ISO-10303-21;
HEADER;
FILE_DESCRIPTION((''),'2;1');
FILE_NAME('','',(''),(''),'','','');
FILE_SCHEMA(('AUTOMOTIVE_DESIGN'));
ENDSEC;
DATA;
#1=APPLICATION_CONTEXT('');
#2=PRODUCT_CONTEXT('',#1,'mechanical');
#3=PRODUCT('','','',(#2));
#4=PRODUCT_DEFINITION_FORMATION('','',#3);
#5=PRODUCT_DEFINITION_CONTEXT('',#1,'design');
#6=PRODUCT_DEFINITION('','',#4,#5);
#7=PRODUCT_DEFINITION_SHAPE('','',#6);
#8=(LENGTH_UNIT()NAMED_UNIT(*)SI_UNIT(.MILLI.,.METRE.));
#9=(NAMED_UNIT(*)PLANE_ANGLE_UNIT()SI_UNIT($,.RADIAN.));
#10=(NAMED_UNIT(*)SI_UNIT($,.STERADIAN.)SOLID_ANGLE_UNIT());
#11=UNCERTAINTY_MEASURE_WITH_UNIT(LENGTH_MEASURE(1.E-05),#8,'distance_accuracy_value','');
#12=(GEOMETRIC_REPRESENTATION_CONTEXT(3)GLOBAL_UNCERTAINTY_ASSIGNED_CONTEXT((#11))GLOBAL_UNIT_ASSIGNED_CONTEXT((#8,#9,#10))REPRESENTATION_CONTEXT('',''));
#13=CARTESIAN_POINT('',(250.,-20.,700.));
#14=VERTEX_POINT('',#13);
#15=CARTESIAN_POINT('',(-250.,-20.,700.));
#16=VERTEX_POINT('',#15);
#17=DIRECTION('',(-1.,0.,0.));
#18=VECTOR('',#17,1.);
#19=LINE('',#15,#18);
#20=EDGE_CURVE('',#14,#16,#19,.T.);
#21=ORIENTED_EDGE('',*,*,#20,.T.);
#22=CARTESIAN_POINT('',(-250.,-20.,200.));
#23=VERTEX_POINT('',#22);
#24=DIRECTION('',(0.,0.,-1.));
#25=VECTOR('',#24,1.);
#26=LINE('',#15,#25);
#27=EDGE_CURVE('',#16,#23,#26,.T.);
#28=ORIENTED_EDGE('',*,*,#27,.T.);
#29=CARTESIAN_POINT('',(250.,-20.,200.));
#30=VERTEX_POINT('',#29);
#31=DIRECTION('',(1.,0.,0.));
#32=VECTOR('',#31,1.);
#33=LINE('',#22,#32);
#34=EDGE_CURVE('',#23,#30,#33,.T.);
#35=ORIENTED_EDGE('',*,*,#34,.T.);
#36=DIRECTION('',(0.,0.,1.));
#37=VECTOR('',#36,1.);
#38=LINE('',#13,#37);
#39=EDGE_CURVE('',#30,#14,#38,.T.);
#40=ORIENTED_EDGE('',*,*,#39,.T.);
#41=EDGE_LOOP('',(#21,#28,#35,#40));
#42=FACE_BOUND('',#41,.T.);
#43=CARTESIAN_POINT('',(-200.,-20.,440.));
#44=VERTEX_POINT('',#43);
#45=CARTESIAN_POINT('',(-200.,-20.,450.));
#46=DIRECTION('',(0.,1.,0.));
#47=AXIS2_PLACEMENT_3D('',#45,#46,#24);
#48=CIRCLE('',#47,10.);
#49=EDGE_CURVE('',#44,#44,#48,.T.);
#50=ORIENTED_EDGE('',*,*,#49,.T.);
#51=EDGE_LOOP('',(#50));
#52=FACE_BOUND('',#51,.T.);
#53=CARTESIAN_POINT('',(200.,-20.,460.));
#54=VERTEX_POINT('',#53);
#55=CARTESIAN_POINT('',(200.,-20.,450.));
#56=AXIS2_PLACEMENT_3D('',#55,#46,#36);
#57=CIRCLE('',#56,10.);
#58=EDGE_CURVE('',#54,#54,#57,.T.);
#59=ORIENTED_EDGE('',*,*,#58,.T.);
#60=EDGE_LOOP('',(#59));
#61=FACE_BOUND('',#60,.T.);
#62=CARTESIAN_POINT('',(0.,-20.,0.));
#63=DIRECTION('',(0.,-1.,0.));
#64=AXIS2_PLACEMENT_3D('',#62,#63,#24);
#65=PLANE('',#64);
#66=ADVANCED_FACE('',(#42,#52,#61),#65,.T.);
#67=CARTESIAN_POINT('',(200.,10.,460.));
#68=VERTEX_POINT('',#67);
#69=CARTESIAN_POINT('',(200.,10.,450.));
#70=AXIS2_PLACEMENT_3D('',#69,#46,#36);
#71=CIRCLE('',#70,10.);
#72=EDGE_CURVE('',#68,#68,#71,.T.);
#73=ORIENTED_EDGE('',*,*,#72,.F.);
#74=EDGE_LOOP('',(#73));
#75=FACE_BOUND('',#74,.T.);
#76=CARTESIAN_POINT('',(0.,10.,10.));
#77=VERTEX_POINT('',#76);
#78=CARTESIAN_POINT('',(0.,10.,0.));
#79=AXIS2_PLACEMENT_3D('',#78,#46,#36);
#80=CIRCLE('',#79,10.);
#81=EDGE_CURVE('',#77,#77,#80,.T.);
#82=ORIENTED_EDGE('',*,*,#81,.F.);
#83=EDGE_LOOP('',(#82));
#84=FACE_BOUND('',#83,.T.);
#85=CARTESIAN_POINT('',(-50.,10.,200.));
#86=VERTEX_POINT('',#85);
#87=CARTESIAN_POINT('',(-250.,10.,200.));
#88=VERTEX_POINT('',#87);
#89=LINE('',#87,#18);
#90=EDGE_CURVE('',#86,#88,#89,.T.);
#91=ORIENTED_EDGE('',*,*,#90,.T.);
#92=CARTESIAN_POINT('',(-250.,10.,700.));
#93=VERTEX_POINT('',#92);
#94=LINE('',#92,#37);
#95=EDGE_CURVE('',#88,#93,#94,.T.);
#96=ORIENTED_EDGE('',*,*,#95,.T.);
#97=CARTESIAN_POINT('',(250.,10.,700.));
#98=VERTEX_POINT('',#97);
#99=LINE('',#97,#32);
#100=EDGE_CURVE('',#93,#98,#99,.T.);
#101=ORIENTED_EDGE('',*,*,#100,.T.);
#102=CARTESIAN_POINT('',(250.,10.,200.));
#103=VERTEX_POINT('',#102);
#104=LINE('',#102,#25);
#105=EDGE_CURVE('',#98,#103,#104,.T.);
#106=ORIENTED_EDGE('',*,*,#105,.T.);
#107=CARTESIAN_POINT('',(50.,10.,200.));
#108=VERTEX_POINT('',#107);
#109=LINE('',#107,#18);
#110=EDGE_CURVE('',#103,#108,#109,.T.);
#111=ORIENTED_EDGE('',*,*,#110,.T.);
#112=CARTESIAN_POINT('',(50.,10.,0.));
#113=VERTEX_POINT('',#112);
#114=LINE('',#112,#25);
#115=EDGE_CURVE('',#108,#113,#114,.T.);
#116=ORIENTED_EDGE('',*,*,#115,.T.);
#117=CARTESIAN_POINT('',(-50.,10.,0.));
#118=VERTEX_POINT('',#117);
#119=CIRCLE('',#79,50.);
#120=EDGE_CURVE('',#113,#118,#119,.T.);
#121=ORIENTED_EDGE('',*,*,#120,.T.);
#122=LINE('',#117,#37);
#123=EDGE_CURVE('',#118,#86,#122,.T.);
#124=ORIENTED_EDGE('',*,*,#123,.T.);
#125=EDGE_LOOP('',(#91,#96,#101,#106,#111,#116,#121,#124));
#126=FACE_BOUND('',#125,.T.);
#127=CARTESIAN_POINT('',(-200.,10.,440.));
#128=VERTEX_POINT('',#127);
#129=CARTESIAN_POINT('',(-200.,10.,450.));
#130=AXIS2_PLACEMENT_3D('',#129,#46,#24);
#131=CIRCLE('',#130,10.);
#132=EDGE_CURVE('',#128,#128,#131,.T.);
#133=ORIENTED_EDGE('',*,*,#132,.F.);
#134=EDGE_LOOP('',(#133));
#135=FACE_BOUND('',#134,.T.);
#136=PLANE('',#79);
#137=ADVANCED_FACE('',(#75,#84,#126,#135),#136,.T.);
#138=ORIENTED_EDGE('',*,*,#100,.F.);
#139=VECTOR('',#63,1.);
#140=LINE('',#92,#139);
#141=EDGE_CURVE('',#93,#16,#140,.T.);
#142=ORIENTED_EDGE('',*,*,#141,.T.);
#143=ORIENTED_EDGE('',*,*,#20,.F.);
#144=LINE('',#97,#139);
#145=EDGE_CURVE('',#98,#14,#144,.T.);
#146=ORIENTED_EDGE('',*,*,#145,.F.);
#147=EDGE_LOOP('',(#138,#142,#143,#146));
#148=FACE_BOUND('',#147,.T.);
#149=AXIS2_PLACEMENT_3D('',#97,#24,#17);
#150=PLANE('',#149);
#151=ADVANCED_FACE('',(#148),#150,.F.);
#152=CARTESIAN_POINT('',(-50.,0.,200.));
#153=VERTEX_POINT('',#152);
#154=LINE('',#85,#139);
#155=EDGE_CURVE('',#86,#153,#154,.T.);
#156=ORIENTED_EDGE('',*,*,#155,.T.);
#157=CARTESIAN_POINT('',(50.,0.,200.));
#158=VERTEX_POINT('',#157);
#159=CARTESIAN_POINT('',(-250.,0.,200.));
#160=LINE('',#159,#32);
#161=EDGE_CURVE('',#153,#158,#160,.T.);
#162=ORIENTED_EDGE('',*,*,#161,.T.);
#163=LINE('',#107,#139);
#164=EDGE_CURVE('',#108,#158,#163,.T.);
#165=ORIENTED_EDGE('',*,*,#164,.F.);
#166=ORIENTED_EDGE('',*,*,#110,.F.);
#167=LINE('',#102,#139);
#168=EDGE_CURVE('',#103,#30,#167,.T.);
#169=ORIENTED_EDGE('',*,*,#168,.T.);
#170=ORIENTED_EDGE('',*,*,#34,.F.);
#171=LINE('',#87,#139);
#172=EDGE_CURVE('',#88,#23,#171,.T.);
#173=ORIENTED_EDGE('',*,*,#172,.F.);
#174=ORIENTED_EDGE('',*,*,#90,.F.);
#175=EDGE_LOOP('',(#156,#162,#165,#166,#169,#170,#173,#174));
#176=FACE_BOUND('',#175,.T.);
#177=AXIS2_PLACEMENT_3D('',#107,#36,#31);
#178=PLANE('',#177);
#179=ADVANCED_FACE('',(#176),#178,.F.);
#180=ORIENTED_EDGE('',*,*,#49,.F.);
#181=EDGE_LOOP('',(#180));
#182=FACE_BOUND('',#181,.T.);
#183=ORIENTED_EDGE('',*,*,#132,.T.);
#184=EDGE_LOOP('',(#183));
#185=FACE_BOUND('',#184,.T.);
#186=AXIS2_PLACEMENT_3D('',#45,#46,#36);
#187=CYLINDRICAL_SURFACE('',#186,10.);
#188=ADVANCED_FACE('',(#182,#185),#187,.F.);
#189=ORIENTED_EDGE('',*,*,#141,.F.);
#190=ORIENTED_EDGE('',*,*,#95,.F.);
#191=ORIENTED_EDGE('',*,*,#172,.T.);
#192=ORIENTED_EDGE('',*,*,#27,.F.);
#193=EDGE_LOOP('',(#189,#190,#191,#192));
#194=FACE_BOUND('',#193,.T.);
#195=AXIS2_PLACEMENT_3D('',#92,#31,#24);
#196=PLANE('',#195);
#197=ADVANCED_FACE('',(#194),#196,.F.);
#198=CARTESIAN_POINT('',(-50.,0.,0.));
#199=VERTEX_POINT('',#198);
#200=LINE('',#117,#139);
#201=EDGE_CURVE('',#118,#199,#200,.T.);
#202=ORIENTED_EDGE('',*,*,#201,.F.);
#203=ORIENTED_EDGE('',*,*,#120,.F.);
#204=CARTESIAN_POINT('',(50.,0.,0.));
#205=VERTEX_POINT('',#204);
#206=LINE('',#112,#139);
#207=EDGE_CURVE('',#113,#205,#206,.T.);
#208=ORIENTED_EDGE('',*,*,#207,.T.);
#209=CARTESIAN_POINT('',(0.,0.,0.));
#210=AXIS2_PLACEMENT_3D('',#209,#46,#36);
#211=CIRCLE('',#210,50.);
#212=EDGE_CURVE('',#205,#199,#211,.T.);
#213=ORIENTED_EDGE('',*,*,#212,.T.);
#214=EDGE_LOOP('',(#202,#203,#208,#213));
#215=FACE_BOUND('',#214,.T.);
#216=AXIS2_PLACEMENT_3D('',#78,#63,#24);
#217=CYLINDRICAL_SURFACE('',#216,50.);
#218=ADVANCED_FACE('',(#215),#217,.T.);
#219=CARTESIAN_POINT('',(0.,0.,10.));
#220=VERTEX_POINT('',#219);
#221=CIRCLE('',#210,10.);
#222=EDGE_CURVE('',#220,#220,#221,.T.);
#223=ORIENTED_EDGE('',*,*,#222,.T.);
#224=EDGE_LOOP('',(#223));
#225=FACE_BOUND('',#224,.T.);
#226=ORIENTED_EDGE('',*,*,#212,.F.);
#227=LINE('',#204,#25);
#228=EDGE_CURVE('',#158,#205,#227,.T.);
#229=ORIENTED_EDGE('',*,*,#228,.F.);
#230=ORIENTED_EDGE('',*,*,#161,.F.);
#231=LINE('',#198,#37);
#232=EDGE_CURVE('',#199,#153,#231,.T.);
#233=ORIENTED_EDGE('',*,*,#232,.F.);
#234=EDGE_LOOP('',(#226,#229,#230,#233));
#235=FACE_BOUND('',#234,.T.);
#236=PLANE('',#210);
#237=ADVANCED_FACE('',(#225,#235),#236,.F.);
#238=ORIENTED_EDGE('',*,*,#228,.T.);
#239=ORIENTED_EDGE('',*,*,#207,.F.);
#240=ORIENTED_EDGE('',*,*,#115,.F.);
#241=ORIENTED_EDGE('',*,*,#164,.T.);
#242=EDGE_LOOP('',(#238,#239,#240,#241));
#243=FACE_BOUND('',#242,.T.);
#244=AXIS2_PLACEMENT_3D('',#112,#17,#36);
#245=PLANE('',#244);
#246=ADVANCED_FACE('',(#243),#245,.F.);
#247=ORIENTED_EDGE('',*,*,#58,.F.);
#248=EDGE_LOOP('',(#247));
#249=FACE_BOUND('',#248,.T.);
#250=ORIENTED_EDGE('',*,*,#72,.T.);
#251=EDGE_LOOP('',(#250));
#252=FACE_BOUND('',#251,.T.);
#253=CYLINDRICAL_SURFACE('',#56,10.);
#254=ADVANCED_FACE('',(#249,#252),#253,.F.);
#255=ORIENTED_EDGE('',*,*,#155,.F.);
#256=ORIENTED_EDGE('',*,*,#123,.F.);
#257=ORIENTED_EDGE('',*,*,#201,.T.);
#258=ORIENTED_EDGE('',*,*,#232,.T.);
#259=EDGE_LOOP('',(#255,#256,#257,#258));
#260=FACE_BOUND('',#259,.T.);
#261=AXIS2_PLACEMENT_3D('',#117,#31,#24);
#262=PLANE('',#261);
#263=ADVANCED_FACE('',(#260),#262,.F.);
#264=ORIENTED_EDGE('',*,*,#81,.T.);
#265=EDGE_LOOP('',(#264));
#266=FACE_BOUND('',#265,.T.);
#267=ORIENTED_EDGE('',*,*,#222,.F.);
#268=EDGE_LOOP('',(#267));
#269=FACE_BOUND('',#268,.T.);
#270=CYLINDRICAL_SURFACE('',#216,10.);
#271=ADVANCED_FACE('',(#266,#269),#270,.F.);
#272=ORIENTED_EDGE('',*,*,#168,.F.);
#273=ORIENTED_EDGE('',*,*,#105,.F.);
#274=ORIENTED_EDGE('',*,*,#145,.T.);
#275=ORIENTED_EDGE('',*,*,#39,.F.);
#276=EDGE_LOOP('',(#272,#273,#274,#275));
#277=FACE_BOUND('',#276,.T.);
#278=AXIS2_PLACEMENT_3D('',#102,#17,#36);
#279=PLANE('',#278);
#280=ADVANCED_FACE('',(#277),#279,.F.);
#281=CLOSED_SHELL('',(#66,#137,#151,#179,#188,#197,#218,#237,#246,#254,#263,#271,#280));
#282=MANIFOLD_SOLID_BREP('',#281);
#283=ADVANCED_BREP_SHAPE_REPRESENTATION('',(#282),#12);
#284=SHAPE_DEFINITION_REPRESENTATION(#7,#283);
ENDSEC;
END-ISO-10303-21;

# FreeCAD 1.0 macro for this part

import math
import FreeCAD as App
import Part
import Sketcher
from FreeCAD import Vector


def add_polygon(sketch, points):
    """Adds a closed chain of lines whose ends are joined by coincident constraints."""
    first, n = sketch.GeometryCount, len(points)
    for a, b in zip(points, points[1:] + points[:1]):
        sketch.addGeometry(Part.LineSegment(App.Vector(*a, 0), App.Vector(*b, 0)), False)
    for i in range(n):
        sketch.addConstraint(Sketcher.Constraint("Coincident", first + i, 2, first + (i + 1) % n, 1))

doc = App.newDocument("Part")
params = doc.addObject("Spreadsheet::Sheet", "Params")
for row, (alias, value) in enumerate([
    ("sketch1_diameter", "20 mm"),
    ("sketch1_radius", "50 mm"),
    ("sketch1_width", "200 mm"),
    ("pad1_length", "10 mm"),
    ("sketch2_width", "500 mm"),
    ("pad2_length", "20 mm"),
    ("sketch3_diameter", "20 mm"),
], start=1):
    params.set(f"A{row}", alias)
    params.set(f"B{row}", "=" + value)
    params.setAlias(f"B{row}", alias)

body = doc.addObject("PartDesign::Body", "Body")

sketch1 = body.newObject("Sketcher::SketchObject", "Sketch")
sketch1.AttachmentSupport = (doc.getObject("XZ_Plane"), [""])
sketch1.MapMode = "FlatFace"
sketch1.addGeometry(Part.LineSegment(Vector(-50, 0, 0), Vector(-50, 200, 0)), False)
sketch1.addGeometry(Part.LineSegment(Vector(-50, 200, 0), Vector(-250, 200, 0)), False)
sketch1.addGeometry(Part.LineSegment(Vector(-250, 200, 0), Vector(-250, 700, 0)), False)
sketch1.addGeometry(Part.LineSegment(Vector(-250, 700, 0), Vector(250, 700, 0)), False)
sketch1.addGeometry(Part.LineSegment(Vector(250, 700, 0), Vector(250, 200, 0)), False)
sketch1.addGeometry(Part.LineSegment(Vector(250, 200, 0), Vector(50, 200, 0)), False)
sketch1.addGeometry(Part.LineSegment(Vector(50, 200, 0), Vector(50, 0, 0)), False)
sketch1.addGeometry(Part.ArcOfCircle(Part.Circle(Vector(0, 0, 0), Vector(0, 0, 1), 50), math.radians(180), math.radians(360)), False)
sketch1.addGeometry(Part.Circle(Vector(0, 0, 0), Vector(0, 0, 1), 10), False)
sketch1.addConstraint(Sketcher.Constraint("Coincident", 0, 2, 1, 1))
sketch1.addConstraint(Sketcher.Constraint("Coincident", 1, 2, 2, 1))
sketch1.addConstraint(Sketcher.Constraint("Coincident", 2, 2, 3, 1))
sketch1.addConstraint(Sketcher.Constraint("Coincident", 3, 2, 4, 1))
sketch1.addConstraint(Sketcher.Constraint("Coincident", 4, 2, 5, 1))
sketch1.addConstraint(Sketcher.Constraint("Coincident", 5, 2, 6, 1))
sketch1.addConstraint(Sketcher.Constraint("Tangent", 6, 2, 7, 2))
sketch1.addConstraint(Sketcher.Constraint("Tangent", 7, 1, 0, 1))
sketch1.addConstraint(Sketcher.Constraint("Vertical", 0))
sketch1.addConstraint(Sketcher.Constraint("Horizontal", 1))
sketch1.addConstraint(Sketcher.Constraint("Vertical", 2))
sketch1.addConstraint(Sketcher.Constraint("Horizontal", 3))
sketch1.addConstraint(Sketcher.Constraint("Vertical", 4))
sketch1.addConstraint(Sketcher.Constraint("Horizontal", 5))
sketch1.addConstraint(Sketcher.Constraint("Vertical", 6))
sketch1.addConstraint(Sketcher.Constraint("Coincident", 7, 3, -1, 1))
sketch1.addConstraint(Sketcher.Constraint("Coincident", 8, 3, -1, 1))
sketch1.addConstraint(Sketcher.Constraint("Symmetric", 1, 2, 4, 2, -2))
sketch1.addConstraint(Sketcher.Constraint("Equal", 5, 0))
sketch1.addConstraint(Sketcher.Constraint("Equal", 3, 2))
sketch1.addConstraint(Sketcher.Constraint("Diameter", 8, 20.0))
sketch1.addConstraint(Sketcher.Constraint("Radius", 7, 50.0))
sketch1.addConstraint(Sketcher.Constraint("DistanceX", 1, 2, 1, 1, 200.0))
sketch1.setExpression("Constraints[20]", "Params.sketch1_diameter")
sketch1.setExpression("Constraints[21]", "Params.sketch1_radius")
sketch1.setExpression("Constraints[22]", "Params.sketch1_width")
pad1 = body.newObject("PartDesign::Pad", "Pad")
pad1.Profile = sketch1
pad1.setExpression("Length", "Params.pad1_length")
pad1.Reversed = True

sketch2 = body.newObject("Sketcher::SketchObject", "Sketch001")
sketch2.AttachmentSupport = (doc.getObject("XZ_Plane"), [""])
sketch2.MapMode = "FlatFace"
add_polygon(sketch2, [(-250, 700), (-250, 200), (250, 200), (250, 700)])
sketch2.addConstraint(Sketcher.Constraint("Vertical", 0))
sketch2.addConstraint(Sketcher.Constraint("Horizontal", 1))
sketch2.addConstraint(Sketcher.Constraint("Vertical", 2))
sketch2.addConstraint(Sketcher.Constraint("Horizontal", 3))
sketch2.addConstraint(Sketcher.Constraint("Equal", 3, 0))
sketch2.addConstraint(Sketcher.Constraint("DistanceX", 1, 1, 1, 2, 500.0))
sketch2.addConstraint(Sketcher.Constraint("DistanceX", 0, 2, -1, 1, 250.0))
sketch2.addConstraint(Sketcher.Constraint("DistanceY", -1, 1, 0, 2, 200.0))
sketch2.setExpression("Constraints[9]", "Params.sketch2_width")
pad2 = body.newObject("PartDesign::Pad", "Pad001")
pad2.Profile = sketch2
pad2.setExpression("Length", "Params.pad2_length")

sketch3 = body.newObject("Sketcher::SketchObject", "Sketch002")
sketch3.AttachmentSupport = (doc.getObject("XZ_Plane"), [""])
sketch3.MapMode = "FlatFace"
sketch3.AttachmentOffset = App.Placement(Vector(0, 0, -10), App.Rotation())
sketch3.addGeometry(Part.Circle(Vector(200, 450, 0), Vector(0, 0, 1), 10), False)
sketch3.addGeometry(Part.Circle(Vector(-200, 450, 0), Vector(0, 0, 1), 10), False)
sketch3.addConstraint(Sketcher.Constraint("Equal", 0, 1))
sketch3.addConstraint(Sketcher.Constraint("Symmetric", 0, 3, 1, 3, -2))
sketch3.addConstraint(Sketcher.Constraint("Diameter", 0, 20.0))
sketch3.addConstraint(Sketcher.Constraint("DistanceX", -1, 1, 0, 3, 200.0))
sketch3.addConstraint(Sketcher.Constraint("DistanceY", -1, 1, 0, 3, 450.0))
sketch3.setExpression("Constraints[2]", "Params.sketch3_diameter")
pocket1 = body.newObject("PartDesign::Pocket", "Pocket")
pocket1.Profile = sketch3
pocket1.Type = "ThroughAll"
pocket1.Reversed = True

doc.recompute()
